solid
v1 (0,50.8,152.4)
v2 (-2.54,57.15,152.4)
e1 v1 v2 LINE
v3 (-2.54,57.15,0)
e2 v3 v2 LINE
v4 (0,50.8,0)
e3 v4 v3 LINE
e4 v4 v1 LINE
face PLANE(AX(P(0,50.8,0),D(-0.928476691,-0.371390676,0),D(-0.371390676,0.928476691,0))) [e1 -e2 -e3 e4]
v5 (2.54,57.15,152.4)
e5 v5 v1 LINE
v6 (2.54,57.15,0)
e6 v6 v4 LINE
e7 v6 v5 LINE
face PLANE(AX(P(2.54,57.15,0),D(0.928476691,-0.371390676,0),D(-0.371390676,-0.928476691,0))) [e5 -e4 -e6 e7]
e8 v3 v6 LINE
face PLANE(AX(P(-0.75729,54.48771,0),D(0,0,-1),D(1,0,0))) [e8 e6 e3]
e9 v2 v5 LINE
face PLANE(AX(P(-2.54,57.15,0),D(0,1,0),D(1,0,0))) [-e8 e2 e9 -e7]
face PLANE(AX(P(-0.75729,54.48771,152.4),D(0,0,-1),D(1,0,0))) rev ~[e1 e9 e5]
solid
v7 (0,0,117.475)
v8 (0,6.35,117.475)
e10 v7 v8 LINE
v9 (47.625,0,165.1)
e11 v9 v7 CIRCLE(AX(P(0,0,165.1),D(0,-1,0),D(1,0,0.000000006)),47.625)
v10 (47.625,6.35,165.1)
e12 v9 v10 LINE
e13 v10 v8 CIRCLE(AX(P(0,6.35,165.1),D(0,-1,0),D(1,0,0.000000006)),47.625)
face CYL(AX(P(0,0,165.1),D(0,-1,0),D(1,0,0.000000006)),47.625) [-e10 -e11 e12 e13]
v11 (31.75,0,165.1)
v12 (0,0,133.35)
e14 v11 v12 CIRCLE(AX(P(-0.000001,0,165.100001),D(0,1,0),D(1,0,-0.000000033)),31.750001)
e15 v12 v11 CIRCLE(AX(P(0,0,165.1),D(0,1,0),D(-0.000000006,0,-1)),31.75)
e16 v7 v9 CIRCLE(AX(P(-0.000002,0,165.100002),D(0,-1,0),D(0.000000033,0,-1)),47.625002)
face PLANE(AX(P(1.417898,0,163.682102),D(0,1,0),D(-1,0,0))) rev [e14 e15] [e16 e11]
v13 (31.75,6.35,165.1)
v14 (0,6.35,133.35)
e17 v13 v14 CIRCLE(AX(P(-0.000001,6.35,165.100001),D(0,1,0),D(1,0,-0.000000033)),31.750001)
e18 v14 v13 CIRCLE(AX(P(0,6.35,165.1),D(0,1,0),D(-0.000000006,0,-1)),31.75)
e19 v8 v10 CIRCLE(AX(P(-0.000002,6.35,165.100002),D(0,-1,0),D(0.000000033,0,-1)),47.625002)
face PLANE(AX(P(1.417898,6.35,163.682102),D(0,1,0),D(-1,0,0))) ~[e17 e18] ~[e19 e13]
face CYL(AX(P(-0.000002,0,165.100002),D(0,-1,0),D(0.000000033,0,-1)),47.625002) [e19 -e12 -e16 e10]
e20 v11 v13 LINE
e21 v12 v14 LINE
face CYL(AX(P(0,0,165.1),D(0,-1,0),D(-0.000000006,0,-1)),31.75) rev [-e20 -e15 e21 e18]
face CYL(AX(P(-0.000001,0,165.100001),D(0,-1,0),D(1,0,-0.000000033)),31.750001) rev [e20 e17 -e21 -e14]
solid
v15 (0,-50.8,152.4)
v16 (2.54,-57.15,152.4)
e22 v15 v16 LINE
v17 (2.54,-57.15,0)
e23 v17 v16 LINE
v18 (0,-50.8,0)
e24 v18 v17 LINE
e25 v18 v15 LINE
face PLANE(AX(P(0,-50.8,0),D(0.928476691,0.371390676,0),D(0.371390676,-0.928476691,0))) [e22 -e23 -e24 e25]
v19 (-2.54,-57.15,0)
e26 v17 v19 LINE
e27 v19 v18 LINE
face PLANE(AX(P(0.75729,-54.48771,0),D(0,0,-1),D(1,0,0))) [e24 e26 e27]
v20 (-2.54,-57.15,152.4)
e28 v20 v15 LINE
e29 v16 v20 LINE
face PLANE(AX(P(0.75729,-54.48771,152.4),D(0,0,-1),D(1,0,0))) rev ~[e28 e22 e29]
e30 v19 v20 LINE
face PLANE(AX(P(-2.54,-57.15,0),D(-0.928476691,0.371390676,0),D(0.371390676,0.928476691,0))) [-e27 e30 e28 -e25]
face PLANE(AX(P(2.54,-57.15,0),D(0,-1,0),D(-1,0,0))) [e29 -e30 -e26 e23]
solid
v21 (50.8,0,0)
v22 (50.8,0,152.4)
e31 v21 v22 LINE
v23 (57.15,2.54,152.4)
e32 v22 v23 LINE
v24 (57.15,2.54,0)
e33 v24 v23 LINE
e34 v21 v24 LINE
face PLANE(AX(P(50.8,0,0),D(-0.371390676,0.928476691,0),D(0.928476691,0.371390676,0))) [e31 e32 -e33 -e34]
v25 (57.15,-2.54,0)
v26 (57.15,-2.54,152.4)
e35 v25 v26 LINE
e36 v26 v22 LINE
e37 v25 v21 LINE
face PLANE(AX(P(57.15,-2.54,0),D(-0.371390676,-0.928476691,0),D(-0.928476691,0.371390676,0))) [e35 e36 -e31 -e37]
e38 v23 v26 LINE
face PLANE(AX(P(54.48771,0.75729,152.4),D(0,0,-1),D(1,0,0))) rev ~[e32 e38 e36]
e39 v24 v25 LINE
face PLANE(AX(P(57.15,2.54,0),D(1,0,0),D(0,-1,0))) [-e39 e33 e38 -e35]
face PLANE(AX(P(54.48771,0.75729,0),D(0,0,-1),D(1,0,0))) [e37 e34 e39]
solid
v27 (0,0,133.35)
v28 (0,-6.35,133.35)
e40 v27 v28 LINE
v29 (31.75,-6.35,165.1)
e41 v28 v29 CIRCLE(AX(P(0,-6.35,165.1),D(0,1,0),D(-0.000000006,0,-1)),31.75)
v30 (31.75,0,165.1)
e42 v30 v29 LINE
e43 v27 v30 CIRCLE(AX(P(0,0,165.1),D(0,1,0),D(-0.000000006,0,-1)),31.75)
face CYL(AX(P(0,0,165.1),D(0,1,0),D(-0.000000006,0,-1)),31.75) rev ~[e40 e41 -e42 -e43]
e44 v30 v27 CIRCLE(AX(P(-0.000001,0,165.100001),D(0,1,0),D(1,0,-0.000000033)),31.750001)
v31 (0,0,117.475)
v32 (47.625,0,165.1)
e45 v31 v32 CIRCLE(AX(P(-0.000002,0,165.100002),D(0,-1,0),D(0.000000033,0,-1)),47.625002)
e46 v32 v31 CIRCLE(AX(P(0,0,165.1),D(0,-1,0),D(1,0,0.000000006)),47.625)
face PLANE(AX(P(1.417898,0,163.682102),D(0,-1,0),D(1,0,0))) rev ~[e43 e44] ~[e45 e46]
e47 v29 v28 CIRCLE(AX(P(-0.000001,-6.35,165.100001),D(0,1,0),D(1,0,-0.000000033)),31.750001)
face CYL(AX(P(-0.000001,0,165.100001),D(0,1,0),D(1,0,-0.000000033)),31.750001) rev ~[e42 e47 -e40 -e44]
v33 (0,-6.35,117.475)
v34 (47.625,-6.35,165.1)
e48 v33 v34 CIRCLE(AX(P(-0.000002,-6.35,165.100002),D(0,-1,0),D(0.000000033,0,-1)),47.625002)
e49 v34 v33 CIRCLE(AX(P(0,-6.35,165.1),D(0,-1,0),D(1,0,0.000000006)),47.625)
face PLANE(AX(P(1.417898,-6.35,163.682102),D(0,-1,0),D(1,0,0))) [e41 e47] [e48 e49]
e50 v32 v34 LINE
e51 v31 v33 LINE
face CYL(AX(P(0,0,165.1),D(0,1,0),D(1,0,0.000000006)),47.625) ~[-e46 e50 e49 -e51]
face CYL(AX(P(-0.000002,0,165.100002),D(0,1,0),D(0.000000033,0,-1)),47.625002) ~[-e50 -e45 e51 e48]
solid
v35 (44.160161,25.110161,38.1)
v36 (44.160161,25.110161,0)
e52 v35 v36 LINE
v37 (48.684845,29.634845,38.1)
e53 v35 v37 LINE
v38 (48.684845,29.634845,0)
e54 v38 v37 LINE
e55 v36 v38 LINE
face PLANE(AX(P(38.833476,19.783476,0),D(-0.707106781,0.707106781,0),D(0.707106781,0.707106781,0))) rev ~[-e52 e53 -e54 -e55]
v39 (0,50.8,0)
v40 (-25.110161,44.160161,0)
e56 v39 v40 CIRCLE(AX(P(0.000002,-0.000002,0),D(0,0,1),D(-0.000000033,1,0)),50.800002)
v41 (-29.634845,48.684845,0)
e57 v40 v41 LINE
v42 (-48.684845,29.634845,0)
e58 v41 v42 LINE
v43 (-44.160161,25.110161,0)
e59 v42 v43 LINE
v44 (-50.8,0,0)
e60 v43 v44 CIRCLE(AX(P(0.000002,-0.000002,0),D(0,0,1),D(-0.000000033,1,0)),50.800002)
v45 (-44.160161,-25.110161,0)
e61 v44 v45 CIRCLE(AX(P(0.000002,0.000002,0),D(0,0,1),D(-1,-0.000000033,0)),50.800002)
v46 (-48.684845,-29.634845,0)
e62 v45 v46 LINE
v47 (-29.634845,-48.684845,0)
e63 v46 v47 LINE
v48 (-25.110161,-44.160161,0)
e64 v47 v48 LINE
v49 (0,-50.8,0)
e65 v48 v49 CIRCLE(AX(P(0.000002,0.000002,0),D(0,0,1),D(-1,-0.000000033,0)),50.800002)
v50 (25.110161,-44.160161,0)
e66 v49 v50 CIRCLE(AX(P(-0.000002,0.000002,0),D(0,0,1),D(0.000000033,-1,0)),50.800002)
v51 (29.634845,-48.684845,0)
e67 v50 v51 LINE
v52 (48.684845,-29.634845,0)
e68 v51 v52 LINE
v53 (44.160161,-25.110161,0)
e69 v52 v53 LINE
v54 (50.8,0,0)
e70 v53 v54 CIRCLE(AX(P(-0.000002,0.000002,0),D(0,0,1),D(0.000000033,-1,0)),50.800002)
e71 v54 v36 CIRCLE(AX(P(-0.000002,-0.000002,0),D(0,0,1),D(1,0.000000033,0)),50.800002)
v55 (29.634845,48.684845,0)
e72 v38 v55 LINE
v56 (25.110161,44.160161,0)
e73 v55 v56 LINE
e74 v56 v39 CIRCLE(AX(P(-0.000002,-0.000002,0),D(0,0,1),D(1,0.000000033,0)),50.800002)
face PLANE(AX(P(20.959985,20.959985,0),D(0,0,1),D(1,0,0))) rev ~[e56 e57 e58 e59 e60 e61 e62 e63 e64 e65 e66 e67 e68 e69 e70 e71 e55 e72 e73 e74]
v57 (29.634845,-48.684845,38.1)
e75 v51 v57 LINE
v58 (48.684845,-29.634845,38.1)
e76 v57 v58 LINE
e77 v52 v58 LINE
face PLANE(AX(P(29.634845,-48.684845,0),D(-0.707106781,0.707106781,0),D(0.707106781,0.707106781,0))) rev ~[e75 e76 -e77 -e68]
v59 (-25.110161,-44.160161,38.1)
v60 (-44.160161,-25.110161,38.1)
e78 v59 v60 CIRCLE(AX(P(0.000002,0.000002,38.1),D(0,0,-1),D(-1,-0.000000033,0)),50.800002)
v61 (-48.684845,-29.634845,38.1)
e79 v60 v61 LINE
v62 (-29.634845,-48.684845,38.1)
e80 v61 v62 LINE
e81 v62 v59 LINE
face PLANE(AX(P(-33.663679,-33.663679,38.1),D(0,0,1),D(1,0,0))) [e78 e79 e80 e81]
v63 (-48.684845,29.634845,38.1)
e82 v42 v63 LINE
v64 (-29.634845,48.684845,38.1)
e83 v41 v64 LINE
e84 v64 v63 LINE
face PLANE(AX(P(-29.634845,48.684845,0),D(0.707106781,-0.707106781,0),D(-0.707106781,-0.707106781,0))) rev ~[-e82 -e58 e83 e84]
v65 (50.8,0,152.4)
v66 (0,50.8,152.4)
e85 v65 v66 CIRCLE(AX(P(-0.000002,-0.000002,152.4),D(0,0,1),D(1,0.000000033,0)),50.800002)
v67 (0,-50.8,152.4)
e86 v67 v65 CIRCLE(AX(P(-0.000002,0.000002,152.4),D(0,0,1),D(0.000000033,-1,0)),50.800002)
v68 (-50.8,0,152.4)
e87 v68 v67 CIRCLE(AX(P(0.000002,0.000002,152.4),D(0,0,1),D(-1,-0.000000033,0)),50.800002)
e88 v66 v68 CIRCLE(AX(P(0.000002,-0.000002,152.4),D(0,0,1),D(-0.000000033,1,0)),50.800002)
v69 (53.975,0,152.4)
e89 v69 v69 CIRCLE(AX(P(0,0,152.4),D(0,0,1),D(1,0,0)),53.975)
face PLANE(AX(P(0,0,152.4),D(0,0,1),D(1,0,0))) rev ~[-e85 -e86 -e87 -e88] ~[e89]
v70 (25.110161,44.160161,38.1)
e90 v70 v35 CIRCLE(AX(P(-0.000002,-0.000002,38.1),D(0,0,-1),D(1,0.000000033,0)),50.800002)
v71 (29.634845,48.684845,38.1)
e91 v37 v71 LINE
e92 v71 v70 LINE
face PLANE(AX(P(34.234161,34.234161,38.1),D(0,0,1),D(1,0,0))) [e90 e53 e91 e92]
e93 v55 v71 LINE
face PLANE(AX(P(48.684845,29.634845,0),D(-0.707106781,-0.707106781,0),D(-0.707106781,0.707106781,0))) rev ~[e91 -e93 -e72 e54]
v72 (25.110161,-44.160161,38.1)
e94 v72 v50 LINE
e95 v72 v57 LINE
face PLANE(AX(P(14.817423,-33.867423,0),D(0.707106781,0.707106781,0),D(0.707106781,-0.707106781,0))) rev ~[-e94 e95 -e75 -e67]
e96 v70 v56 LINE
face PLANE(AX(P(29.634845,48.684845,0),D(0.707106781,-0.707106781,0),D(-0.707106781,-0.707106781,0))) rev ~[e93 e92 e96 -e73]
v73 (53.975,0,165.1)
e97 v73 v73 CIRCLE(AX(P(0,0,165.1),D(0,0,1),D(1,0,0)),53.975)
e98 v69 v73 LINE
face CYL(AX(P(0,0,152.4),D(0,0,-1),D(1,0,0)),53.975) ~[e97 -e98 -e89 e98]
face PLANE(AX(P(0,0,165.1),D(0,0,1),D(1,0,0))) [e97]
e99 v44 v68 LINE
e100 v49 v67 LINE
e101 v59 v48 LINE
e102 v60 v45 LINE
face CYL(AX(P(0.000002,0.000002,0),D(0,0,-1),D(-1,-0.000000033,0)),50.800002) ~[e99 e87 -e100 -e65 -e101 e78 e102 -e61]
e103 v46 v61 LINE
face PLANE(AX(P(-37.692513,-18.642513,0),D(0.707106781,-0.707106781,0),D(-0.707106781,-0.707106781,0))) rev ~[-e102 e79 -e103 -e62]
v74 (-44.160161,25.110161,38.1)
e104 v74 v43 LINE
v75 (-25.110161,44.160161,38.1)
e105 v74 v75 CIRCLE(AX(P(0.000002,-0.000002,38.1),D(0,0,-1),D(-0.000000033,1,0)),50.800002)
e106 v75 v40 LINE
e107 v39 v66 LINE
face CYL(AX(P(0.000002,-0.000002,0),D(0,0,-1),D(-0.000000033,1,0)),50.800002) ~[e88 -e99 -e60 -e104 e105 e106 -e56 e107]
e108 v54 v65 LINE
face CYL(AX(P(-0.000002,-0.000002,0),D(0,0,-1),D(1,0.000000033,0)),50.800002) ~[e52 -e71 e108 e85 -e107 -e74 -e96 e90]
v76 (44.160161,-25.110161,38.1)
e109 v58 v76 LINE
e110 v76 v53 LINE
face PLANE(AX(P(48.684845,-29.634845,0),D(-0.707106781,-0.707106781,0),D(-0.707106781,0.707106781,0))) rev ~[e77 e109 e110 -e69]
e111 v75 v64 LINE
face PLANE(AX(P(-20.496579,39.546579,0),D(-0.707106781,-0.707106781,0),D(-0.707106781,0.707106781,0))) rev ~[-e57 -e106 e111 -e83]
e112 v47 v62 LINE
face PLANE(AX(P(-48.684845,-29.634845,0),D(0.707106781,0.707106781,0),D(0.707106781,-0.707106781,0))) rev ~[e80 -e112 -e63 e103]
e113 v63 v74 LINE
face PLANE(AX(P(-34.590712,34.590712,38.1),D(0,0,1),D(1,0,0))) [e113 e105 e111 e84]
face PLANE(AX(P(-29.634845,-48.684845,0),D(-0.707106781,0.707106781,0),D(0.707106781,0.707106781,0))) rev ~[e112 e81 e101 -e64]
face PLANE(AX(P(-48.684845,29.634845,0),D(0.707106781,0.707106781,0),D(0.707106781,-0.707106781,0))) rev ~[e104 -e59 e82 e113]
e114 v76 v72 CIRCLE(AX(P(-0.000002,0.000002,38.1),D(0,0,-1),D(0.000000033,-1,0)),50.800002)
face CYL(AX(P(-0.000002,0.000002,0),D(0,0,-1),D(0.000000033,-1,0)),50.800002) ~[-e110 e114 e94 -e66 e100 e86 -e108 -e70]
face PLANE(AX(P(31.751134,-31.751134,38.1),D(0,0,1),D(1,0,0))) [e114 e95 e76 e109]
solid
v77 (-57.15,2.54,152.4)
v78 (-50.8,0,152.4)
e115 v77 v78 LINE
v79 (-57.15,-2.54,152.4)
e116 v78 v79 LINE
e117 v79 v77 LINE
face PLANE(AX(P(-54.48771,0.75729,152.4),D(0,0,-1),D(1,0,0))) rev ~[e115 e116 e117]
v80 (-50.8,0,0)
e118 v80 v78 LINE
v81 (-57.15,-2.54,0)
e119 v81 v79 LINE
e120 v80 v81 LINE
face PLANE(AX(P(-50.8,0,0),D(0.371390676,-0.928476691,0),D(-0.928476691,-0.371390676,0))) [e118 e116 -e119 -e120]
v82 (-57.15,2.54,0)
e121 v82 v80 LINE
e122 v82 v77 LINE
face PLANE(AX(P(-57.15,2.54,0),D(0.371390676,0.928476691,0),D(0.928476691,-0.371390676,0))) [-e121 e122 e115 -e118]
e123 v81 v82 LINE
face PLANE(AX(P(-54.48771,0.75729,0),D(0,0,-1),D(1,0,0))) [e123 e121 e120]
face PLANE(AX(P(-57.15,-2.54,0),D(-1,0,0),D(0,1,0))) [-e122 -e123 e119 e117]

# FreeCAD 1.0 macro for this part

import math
import FreeCAD as App
import Part
import Sketcher
from FreeCAD import Vector
Q = App.Units.Quantity

doc = App.newDocument("Part")
body = doc.addObject("PartDesign::Body", "Body")

sketch1 = body.newObject("Sketcher::SketchObject", "Sketch")
sketch1.AttachmentSupport = (doc.getObject("XY_Plane"), [""])
sketch1.MapMode = "FlatFace"
sketch1.addGeometry([
    Part.ArcOfCircle(Part.Circle(Vector(-0.000002, -0.000002, 0), Vector(0, 0, 1), 50.800002), math.radians(0.000002), math.radians(89.999998)),
    Part.ArcOfCircle(Part.Circle(Vector(0.000002, -0.000002, 0), Vector(0, 0, 1), 50.800002), math.radians(90.000002), math.radians(179.999998)),
    Part.ArcOfCircle(Part.Circle(Vector(0.000002, 0.000002, 0), Vector(0, 0, 1), 50.800002), math.radians(-179.999998), math.radians(-90.000002)),
    Part.ArcOfCircle(Part.Circle(Vector(-0.000002, 0.000002, 0), Vector(0, 0, 1), 50.800002), math.radians(-89.999998), math.radians(-0.000002)),
], False)
sketch1.addConstraint([
    Sketcher.Constraint("Tangent", 0, 2, 1, 1),
    Sketcher.Constraint("Tangent", 1, 2, 2, 1),
    Sketcher.Constraint("Tangent", 2, 2, 3, 1),
    Sketcher.Constraint("Tangent", 3, 2, 0, 1),
    Sketcher.Constraint("Coincident", 0, 3, -1, 1),
    Sketcher.Constraint("Equal", 0, 1),
    Sketcher.Constraint("PointOnObject", 0, 2, -2),
    Sketcher.Constraint("PointOnObject", 1, 2, -1),
    Sketcher.Constraint("PointOnObject", 2, 2, -2),
    Sketcher.Constraint("PointOnObject", 3, 2, -1),
    Sketcher.Constraint("Radius", 0, Q("2.0000001 in")),
])
pad1 = body.newObject("PartDesign::Pad", "Pad")
pad1.Profile = sketch1
pad1.Length = Q("6 in")

sketch2 = body.newObject("Sketcher::SketchObject", "Sketch001")
sketch2.AttachmentSupport = (doc.getObject("XY_Plane"), [""])
sketch2.MapMode = "FlatFace"
sketch2.addGeometry([
    Part.LineSegment(Vector(-39.546579, 20.496579, 0), Vector(-20.496579, 39.546579, 0)),
    Part.LineSegment(Vector(-20.496579, 39.546579, 0), Vector(-29.634845, 48.684845, 0)),
    Part.LineSegment(Vector(-29.634845, 48.684845, 0), Vector(-48.684845, 29.634845, 0)),
    Part.LineSegment(Vector(-48.684845, 29.634845, 0), Vector(-39.546579, 20.496579, 0)),
    Part.LineSegment(Vector(29.634845, 48.684845, 0), Vector(19.783476, 38.833476, 0)),
    Part.LineSegment(Vector(19.783476, 38.833476, 0), Vector(38.833476, 19.783476, 0)),
    Part.LineSegment(Vector(38.833476, 19.783476, 0), Vector(48.684845, 29.634845, 0)),
    Part.LineSegment(Vector(48.684845, 29.634845, 0), Vector(29.634845, 48.684845, 0)),
    Part.LineSegment(Vector(-29.634845, -48.684845, 0), Vector(-18.642513, -37.692513, 0)),
    Part.LineSegment(Vector(-18.642513, -37.692513, 0), Vector(-37.692513, -18.642513, 0)),
    Part.LineSegment(Vector(-37.692513, -18.642513, 0), Vector(-48.684845, -29.634845, 0)),
    Part.LineSegment(Vector(-48.684845, -29.634845, 0), Vector(-29.634845, -48.684845, 0)),
    Part.LineSegment(Vector(33.867423, -14.817423, 0), Vector(14.817423, -33.867423, 0)),
    Part.LineSegment(Vector(14.817423, -33.867423, 0), Vector(29.634845, -48.684845, 0)),
    Part.LineSegment(Vector(29.634845, -48.684845, 0), Vector(48.684845, -29.634845, 0)),
    Part.LineSegment(Vector(48.684845, -29.634845, 0), Vector(33.867423, -14.817423, 0)),
], False)
sketch2.addConstraint([
    Sketcher.Constraint("Coincident", 0, 2, 1, 1),
    Sketcher.Constraint("Coincident", 1, 2, 2, 1),
    Sketcher.Constraint("Coincident", 2, 2, 3, 1),
    Sketcher.Constraint("Coincident", 3, 2, 0, 1),
    Sketcher.Constraint("Coincident", 4, 2, 5, 1),
    Sketcher.Constraint("Coincident", 5, 2, 6, 1),
    Sketcher.Constraint("Coincident", 6, 2, 7, 1),
    Sketcher.Constraint("Coincident", 7, 2, 4, 1),
    Sketcher.Constraint("Coincident", 8, 2, 9, 1),
    Sketcher.Constraint("Coincident", 9, 2, 10, 1),
    Sketcher.Constraint("Coincident", 10, 2, 11, 1),
    Sketcher.Constraint("Coincident", 11, 2, 8, 1),
    Sketcher.Constraint("Coincident", 12, 2, 13, 1),
    Sketcher.Constraint("Coincident", 13, 2, 14, 1),
    Sketcher.Constraint("Coincident", 14, 2, 15, 1),
    Sketcher.Constraint("Coincident", 15, 2, 12, 1),
    Sketcher.Constraint("Symmetric", 6, 2, 10, 2, -1, 1),
    Sketcher.Constraint("Symmetric", 7, 2, 11, 2, -1, 1),
    Sketcher.Constraint("Symmetric", 1, 2, 13, 2, -1, 1),
    Sketcher.Constraint("Symmetric", 2, 2, 14, 2, -1, 1),
    Sketcher.Constraint("Symmetric", 2, 2, 6, 2, -2),
    Sketcher.Constraint("Symmetric", 1, 2, 7, 2, -2),
    Sketcher.Constraint("Perpendicular", 0, 1),
    Sketcher.Constraint("Perpendicular", 1, 2),
    Sketcher.Constraint("Perpendicular", 2, 3),
    Sketcher.Constraint("Perpendicular", 3, 4),
    Sketcher.Constraint("Perpendicular", 4, 5),
    Sketcher.Constraint("Perpendicular", 5, 6),
    Sketcher.Constraint("Perpendicular", 6, 7),
    Sketcher.Constraint("Perpendicular", 7, 8),
    Sketcher.Constraint("Perpendicular", 8, 9),
    Sketcher.Constraint("Perpendicular", 9, 10),
    Sketcher.Constraint("Perpendicular", 11, 12),
    Sketcher.Constraint("Perpendicular", 12, 13),
    Sketcher.Constraint("Perpendicular", 14, 15),
    Sketcher.Constraint("DistanceX", 2, 2, 1, 2, Q("0.75 in")),
    Sketcher.Constraint("Distance", 13, Q("0.825 in")),
    Sketcher.Constraint("DistanceY", 12, 2, 5, 2, 53.650899),
    Sketcher.Constraint("Distance", 1, 12.92346),
    Sketcher.Constraint("Distance", 4, 13.93194),
    Sketcher.Constraint("DistanceX", 0, 2, -1, 1, 20.496579),
    Sketcher.Constraint("DistanceY", 8, 2, 2, 2, 67.327358),
])
pad2 = body.newObject("PartDesign::Pad", "Pad001")
pad2.Profile = sketch2
pad2.Length = Q("1.5 in")

sketch3 = body.newObject("Sketcher::SketchObject", "Sketch002")
sketch3.AttachmentSupport = (doc.getObject("XY_Plane"), [""])
sketch3.MapMode = "FlatFace"
sketch3.AttachmentOffset = App.Placement(Vector(0, 0, 6 * 25.4), App.Rotation())
sketch3.addGeometry(Part.Circle(Vector(0, 0, 0), Vector(0, 0, 1), 53.975), False)
sketch3.addConstraint([
    Sketcher.Constraint("Coincident", 0, 3, -1, 1),
    Sketcher.Constraint("Diameter", 0, Q("4.25 in")),
])
pad3 = body.newObject("PartDesign::Pad", "Pad002")
pad3.Profile = sketch3
pad3.Length = Q("0.5 in")
body2 = doc.addObject("PartDesign::Body", "Body001")

sketch4 = body2.newObject("Sketcher::SketchObject", "Sketch003")
sketch4.AttachmentSupport = (doc.getObject("XZ_Plane001"), [""])
sketch4.MapMode = "FlatFace"
sketch4.addGeometry([
    Part.ArcOfCircle(Part.Circle(Vector(0, 165.1, 0), Vector(0, 0, 1), 47.625), math.radians(0), math.radians(270)),
    Part.ArcOfCircle(Part.Circle(Vector(-0.000002, 165.100002, 0), Vector(0, 0, 1), 47.625002), math.radians(-89.999998), math.radians(-0.000002)),
    Part.ArcOfCircle(Part.Circle(Vector(0, 165.1, 0), Vector(0, 0, 1), 31.75), math.radians(0), math.radians(270)),
    Part.ArcOfCircle(Part.Circle(Vector(-0.000001, 165.100001, 0), Vector(0, 0, 1), 31.750001), math.radians(-89.999998), math.radians(-0.000002)),
], False)
sketch4.addConstraint([
    Sketcher.Constraint("Tangent", 0, 1, 1, 2),
    Sketcher.Constraint("Coincident", 1, 1, 0, 2),
    Sketcher.Constraint("Tangent", 2, 1, 3, 2),
    Sketcher.Constraint("Coincident", 3, 1, 2, 2),
    Sketcher.Constraint("Coincident", 2, 3, 0, 3),
    Sketcher.Constraint("PointOnObject", 0, 3, -2),
    Sketcher.Constraint("PointOnObject", 1, 1, -2),
    Sketcher.Constraint("PointOnObject", 3, 1, -2),
    Sketcher.Constraint("Horizontal", 3, 3, 0, 1),
    Sketcher.Constraint("Horizontal", 0, 1, 2, 1),
    Sketcher.Constraint("Radius", 2, Q("1.25 in")),
    Sketcher.Constraint("Radius", 0, Q("1.875 in")),
    Sketcher.Constraint("DistanceY", -1, 1, 0, 3, Q("6.5 in")),
])
pad4 = body2.newObject("PartDesign::Pad", "Pad003")
pad4.Profile = sketch4
pad4.Length = Q("0.25 in")
body3 = doc.addObject("PartDesign::Body", "Body002")
doc.recompute()

mirroring = doc.addObject("Part::Mirroring", "Mirroring")
mirroring.Source = body2
mirroring.Base = Vector(0, 0, 0)
mirroring.Normal = Vector(0, -1, 0)
body3.BaseFeature = mirroring
doc.recompute()
body4 = doc.addObject("PartDesign::Body", "Body003")
body4.AllowCompound = True

sketch5 = body4.newObject("Sketcher::SketchObject", "Sketch004")
sketch5.AttachmentSupport = (doc.getObject("XY_Plane003"), [""])
sketch5.MapMode = "FlatFace"
sketch5.addGeometry([
    Part.LineSegment(Vector(0, 50.8, 0), Vector(-2.54, 57.15, 0)),
    Part.LineSegment(Vector(-2.54, 57.15, 0), Vector(2.54, 57.15, 0)),
    Part.LineSegment(Vector(2.54, 57.15, 0), Vector(0, 50.8, 0)),
    Part.LineSegment(Vector(50.8, 0, 0), Vector(57.15, 2.54, 0)),
    Part.LineSegment(Vector(57.15, 2.54, 0), Vector(57.15, -2.54, 0)),
    Part.LineSegment(Vector(57.15, -2.54, 0), Vector(50.8, 0, 0)),
    Part.LineSegment(Vector(0, -50.8, 0), Vector(2.54, -57.15, 0)),
    Part.LineSegment(Vector(2.54, -57.15, 0), Vector(-2.54, -57.15, 0)),
    Part.LineSegment(Vector(-2.54, -57.15, 0), Vector(0, -50.8, 0)),
    Part.LineSegment(Vector(-57.15, 2.54, 0), Vector(-50.8, 0, 0)),
    Part.LineSegment(Vector(-50.8, 0, 0), Vector(-57.15, -2.54, 0)),
    Part.LineSegment(Vector(-57.15, -2.54, 0), Vector(-57.15, 2.54, 0)),
], False)
sketch5.addConstraint([
    Sketcher.Constraint("Coincident", 0, 2, 1, 1),
    Sketcher.Constraint("Coincident", 1, 2, 2, 1),
    Sketcher.Constraint("Coincident", 2, 2, 0, 1),
    Sketcher.Constraint("Coincident", 3, 2, 4, 1),
    Sketcher.Constraint("Coincident", 4, 2, 5, 1),
    Sketcher.Constraint("Coincident", 5, 2, 3, 1),
    Sketcher.Constraint("Coincident", 6, 2, 7, 1),
    Sketcher.Constraint("Coincident", 7, 2, 8, 1),
    Sketcher.Constraint("Coincident", 8, 2, 6, 1),
    Sketcher.Constraint("Coincident", 9, 2, 10, 1),
    Sketcher.Constraint("Coincident", 10, 2, 11, 1),
    Sketcher.Constraint("Coincident", 11, 2, 9, 1),
    Sketcher.Constraint("Horizontal", 1),
    Sketcher.Constraint("Vertical", 4),
    Sketcher.Constraint("Horizontal", 7),
    Sketcher.Constraint("Vertical", 11),
    Sketcher.Constraint("Symmetric", 0, 2, 6, 2, -1, 1),
    Sketcher.Constraint("Symmetric", 2, 2, 8, 2, -1, 1),
    Sketcher.Constraint("Symmetric", 5, 2, 9, 2, -1, 1),
    Sketcher.Constraint("Symmetric", 3, 2, 10, 2, -1, 1),
    Sketcher.Constraint("PointOnObject", 2, 2, -2),
    Sketcher.Constraint("PointOnObject", 5, 2, -1),
    Sketcher.Constraint("Perpendicular", 0, 3),
    Sketcher.Constraint("Perpendicular", 2, 5),
    Sketcher.Constraint("Perpendicular", 5, 8),
    Sketcher.Constraint("Perpendicular", 8, 9),
    Sketcher.Constraint("Horizontal", 4, 2, 10, 2),
    Sketcher.Constraint("Equal", 7, 4),
    Sketcher.Constraint("DistanceX", 1, 1, 1, 2, Q("0.2 in")),
    Sketcher.Constraint("DistanceY", -1, 1, 2, 2, Q("2 in")),
    Sketcher.Constraint("DistanceX", -1, 1, 5, 2, Q("2 in")),
    Sketcher.Constraint("DistanceY", 6, 2, 1, 2, Q("4.5 in")),
])
pad5 = body4.newObject("PartDesign::Pad", "Pad004")
pad5.Profile = sketch5
pad5.Length = Q("6 in")
mirroring.Visibility = False

doc.recompute()
